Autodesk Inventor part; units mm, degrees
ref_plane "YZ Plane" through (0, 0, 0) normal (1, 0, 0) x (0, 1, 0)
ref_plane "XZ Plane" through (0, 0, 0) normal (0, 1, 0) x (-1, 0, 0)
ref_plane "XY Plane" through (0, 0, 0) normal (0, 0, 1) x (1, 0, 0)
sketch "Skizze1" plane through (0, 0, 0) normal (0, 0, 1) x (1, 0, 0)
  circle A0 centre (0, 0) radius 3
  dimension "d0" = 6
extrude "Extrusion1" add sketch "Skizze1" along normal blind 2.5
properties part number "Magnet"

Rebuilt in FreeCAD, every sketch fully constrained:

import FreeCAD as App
import Part
import Sketcher
from FreeCAD import Vector
Q = App.Units.Quantity

doc = App.newDocument("Part")
params = doc.addObject("Spreadsheet::Sheet", "Params")
for row, (alias, value) in enumerate([
    ("sketch1_diameter", "6 mm"),
    ("pad1_length", "2.5 mm"),
], start=1):
    params.set(f"A{row}", alias)
    params.set(f"B{row}", "=" + value)
    params.setAlias(f"B{row}", alias)

body = doc.addObject("PartDesign::Body", "Body")

sketch1 = body.newObject("Sketcher::SketchObject", "Sketch")
sketch1.AttachmentSupport = (doc.getObject("XY_Plane"), [""])
sketch1.MapMode = "FlatFace"
sketch1.addGeometry(Part.Circle(Vector(0, 0, 0), Vector(0, 0, 1), 3), False)
sketch1.addConstraint(Sketcher.Constraint("Coincident", 0, 3, -1, 1))
sketch1.addConstraint(Sketcher.Constraint("Diameter", 0, Q("6 mm")))
sketch1.setExpression("Constraints[1]", "Params.sketch1_diameter")
pad1 = body.newObject("PartDesign::Pad", "Pad")
pad1.Profile = sketch1
pad1.setExpression("Length", "Params.pad1_length")

doc.recompute()
